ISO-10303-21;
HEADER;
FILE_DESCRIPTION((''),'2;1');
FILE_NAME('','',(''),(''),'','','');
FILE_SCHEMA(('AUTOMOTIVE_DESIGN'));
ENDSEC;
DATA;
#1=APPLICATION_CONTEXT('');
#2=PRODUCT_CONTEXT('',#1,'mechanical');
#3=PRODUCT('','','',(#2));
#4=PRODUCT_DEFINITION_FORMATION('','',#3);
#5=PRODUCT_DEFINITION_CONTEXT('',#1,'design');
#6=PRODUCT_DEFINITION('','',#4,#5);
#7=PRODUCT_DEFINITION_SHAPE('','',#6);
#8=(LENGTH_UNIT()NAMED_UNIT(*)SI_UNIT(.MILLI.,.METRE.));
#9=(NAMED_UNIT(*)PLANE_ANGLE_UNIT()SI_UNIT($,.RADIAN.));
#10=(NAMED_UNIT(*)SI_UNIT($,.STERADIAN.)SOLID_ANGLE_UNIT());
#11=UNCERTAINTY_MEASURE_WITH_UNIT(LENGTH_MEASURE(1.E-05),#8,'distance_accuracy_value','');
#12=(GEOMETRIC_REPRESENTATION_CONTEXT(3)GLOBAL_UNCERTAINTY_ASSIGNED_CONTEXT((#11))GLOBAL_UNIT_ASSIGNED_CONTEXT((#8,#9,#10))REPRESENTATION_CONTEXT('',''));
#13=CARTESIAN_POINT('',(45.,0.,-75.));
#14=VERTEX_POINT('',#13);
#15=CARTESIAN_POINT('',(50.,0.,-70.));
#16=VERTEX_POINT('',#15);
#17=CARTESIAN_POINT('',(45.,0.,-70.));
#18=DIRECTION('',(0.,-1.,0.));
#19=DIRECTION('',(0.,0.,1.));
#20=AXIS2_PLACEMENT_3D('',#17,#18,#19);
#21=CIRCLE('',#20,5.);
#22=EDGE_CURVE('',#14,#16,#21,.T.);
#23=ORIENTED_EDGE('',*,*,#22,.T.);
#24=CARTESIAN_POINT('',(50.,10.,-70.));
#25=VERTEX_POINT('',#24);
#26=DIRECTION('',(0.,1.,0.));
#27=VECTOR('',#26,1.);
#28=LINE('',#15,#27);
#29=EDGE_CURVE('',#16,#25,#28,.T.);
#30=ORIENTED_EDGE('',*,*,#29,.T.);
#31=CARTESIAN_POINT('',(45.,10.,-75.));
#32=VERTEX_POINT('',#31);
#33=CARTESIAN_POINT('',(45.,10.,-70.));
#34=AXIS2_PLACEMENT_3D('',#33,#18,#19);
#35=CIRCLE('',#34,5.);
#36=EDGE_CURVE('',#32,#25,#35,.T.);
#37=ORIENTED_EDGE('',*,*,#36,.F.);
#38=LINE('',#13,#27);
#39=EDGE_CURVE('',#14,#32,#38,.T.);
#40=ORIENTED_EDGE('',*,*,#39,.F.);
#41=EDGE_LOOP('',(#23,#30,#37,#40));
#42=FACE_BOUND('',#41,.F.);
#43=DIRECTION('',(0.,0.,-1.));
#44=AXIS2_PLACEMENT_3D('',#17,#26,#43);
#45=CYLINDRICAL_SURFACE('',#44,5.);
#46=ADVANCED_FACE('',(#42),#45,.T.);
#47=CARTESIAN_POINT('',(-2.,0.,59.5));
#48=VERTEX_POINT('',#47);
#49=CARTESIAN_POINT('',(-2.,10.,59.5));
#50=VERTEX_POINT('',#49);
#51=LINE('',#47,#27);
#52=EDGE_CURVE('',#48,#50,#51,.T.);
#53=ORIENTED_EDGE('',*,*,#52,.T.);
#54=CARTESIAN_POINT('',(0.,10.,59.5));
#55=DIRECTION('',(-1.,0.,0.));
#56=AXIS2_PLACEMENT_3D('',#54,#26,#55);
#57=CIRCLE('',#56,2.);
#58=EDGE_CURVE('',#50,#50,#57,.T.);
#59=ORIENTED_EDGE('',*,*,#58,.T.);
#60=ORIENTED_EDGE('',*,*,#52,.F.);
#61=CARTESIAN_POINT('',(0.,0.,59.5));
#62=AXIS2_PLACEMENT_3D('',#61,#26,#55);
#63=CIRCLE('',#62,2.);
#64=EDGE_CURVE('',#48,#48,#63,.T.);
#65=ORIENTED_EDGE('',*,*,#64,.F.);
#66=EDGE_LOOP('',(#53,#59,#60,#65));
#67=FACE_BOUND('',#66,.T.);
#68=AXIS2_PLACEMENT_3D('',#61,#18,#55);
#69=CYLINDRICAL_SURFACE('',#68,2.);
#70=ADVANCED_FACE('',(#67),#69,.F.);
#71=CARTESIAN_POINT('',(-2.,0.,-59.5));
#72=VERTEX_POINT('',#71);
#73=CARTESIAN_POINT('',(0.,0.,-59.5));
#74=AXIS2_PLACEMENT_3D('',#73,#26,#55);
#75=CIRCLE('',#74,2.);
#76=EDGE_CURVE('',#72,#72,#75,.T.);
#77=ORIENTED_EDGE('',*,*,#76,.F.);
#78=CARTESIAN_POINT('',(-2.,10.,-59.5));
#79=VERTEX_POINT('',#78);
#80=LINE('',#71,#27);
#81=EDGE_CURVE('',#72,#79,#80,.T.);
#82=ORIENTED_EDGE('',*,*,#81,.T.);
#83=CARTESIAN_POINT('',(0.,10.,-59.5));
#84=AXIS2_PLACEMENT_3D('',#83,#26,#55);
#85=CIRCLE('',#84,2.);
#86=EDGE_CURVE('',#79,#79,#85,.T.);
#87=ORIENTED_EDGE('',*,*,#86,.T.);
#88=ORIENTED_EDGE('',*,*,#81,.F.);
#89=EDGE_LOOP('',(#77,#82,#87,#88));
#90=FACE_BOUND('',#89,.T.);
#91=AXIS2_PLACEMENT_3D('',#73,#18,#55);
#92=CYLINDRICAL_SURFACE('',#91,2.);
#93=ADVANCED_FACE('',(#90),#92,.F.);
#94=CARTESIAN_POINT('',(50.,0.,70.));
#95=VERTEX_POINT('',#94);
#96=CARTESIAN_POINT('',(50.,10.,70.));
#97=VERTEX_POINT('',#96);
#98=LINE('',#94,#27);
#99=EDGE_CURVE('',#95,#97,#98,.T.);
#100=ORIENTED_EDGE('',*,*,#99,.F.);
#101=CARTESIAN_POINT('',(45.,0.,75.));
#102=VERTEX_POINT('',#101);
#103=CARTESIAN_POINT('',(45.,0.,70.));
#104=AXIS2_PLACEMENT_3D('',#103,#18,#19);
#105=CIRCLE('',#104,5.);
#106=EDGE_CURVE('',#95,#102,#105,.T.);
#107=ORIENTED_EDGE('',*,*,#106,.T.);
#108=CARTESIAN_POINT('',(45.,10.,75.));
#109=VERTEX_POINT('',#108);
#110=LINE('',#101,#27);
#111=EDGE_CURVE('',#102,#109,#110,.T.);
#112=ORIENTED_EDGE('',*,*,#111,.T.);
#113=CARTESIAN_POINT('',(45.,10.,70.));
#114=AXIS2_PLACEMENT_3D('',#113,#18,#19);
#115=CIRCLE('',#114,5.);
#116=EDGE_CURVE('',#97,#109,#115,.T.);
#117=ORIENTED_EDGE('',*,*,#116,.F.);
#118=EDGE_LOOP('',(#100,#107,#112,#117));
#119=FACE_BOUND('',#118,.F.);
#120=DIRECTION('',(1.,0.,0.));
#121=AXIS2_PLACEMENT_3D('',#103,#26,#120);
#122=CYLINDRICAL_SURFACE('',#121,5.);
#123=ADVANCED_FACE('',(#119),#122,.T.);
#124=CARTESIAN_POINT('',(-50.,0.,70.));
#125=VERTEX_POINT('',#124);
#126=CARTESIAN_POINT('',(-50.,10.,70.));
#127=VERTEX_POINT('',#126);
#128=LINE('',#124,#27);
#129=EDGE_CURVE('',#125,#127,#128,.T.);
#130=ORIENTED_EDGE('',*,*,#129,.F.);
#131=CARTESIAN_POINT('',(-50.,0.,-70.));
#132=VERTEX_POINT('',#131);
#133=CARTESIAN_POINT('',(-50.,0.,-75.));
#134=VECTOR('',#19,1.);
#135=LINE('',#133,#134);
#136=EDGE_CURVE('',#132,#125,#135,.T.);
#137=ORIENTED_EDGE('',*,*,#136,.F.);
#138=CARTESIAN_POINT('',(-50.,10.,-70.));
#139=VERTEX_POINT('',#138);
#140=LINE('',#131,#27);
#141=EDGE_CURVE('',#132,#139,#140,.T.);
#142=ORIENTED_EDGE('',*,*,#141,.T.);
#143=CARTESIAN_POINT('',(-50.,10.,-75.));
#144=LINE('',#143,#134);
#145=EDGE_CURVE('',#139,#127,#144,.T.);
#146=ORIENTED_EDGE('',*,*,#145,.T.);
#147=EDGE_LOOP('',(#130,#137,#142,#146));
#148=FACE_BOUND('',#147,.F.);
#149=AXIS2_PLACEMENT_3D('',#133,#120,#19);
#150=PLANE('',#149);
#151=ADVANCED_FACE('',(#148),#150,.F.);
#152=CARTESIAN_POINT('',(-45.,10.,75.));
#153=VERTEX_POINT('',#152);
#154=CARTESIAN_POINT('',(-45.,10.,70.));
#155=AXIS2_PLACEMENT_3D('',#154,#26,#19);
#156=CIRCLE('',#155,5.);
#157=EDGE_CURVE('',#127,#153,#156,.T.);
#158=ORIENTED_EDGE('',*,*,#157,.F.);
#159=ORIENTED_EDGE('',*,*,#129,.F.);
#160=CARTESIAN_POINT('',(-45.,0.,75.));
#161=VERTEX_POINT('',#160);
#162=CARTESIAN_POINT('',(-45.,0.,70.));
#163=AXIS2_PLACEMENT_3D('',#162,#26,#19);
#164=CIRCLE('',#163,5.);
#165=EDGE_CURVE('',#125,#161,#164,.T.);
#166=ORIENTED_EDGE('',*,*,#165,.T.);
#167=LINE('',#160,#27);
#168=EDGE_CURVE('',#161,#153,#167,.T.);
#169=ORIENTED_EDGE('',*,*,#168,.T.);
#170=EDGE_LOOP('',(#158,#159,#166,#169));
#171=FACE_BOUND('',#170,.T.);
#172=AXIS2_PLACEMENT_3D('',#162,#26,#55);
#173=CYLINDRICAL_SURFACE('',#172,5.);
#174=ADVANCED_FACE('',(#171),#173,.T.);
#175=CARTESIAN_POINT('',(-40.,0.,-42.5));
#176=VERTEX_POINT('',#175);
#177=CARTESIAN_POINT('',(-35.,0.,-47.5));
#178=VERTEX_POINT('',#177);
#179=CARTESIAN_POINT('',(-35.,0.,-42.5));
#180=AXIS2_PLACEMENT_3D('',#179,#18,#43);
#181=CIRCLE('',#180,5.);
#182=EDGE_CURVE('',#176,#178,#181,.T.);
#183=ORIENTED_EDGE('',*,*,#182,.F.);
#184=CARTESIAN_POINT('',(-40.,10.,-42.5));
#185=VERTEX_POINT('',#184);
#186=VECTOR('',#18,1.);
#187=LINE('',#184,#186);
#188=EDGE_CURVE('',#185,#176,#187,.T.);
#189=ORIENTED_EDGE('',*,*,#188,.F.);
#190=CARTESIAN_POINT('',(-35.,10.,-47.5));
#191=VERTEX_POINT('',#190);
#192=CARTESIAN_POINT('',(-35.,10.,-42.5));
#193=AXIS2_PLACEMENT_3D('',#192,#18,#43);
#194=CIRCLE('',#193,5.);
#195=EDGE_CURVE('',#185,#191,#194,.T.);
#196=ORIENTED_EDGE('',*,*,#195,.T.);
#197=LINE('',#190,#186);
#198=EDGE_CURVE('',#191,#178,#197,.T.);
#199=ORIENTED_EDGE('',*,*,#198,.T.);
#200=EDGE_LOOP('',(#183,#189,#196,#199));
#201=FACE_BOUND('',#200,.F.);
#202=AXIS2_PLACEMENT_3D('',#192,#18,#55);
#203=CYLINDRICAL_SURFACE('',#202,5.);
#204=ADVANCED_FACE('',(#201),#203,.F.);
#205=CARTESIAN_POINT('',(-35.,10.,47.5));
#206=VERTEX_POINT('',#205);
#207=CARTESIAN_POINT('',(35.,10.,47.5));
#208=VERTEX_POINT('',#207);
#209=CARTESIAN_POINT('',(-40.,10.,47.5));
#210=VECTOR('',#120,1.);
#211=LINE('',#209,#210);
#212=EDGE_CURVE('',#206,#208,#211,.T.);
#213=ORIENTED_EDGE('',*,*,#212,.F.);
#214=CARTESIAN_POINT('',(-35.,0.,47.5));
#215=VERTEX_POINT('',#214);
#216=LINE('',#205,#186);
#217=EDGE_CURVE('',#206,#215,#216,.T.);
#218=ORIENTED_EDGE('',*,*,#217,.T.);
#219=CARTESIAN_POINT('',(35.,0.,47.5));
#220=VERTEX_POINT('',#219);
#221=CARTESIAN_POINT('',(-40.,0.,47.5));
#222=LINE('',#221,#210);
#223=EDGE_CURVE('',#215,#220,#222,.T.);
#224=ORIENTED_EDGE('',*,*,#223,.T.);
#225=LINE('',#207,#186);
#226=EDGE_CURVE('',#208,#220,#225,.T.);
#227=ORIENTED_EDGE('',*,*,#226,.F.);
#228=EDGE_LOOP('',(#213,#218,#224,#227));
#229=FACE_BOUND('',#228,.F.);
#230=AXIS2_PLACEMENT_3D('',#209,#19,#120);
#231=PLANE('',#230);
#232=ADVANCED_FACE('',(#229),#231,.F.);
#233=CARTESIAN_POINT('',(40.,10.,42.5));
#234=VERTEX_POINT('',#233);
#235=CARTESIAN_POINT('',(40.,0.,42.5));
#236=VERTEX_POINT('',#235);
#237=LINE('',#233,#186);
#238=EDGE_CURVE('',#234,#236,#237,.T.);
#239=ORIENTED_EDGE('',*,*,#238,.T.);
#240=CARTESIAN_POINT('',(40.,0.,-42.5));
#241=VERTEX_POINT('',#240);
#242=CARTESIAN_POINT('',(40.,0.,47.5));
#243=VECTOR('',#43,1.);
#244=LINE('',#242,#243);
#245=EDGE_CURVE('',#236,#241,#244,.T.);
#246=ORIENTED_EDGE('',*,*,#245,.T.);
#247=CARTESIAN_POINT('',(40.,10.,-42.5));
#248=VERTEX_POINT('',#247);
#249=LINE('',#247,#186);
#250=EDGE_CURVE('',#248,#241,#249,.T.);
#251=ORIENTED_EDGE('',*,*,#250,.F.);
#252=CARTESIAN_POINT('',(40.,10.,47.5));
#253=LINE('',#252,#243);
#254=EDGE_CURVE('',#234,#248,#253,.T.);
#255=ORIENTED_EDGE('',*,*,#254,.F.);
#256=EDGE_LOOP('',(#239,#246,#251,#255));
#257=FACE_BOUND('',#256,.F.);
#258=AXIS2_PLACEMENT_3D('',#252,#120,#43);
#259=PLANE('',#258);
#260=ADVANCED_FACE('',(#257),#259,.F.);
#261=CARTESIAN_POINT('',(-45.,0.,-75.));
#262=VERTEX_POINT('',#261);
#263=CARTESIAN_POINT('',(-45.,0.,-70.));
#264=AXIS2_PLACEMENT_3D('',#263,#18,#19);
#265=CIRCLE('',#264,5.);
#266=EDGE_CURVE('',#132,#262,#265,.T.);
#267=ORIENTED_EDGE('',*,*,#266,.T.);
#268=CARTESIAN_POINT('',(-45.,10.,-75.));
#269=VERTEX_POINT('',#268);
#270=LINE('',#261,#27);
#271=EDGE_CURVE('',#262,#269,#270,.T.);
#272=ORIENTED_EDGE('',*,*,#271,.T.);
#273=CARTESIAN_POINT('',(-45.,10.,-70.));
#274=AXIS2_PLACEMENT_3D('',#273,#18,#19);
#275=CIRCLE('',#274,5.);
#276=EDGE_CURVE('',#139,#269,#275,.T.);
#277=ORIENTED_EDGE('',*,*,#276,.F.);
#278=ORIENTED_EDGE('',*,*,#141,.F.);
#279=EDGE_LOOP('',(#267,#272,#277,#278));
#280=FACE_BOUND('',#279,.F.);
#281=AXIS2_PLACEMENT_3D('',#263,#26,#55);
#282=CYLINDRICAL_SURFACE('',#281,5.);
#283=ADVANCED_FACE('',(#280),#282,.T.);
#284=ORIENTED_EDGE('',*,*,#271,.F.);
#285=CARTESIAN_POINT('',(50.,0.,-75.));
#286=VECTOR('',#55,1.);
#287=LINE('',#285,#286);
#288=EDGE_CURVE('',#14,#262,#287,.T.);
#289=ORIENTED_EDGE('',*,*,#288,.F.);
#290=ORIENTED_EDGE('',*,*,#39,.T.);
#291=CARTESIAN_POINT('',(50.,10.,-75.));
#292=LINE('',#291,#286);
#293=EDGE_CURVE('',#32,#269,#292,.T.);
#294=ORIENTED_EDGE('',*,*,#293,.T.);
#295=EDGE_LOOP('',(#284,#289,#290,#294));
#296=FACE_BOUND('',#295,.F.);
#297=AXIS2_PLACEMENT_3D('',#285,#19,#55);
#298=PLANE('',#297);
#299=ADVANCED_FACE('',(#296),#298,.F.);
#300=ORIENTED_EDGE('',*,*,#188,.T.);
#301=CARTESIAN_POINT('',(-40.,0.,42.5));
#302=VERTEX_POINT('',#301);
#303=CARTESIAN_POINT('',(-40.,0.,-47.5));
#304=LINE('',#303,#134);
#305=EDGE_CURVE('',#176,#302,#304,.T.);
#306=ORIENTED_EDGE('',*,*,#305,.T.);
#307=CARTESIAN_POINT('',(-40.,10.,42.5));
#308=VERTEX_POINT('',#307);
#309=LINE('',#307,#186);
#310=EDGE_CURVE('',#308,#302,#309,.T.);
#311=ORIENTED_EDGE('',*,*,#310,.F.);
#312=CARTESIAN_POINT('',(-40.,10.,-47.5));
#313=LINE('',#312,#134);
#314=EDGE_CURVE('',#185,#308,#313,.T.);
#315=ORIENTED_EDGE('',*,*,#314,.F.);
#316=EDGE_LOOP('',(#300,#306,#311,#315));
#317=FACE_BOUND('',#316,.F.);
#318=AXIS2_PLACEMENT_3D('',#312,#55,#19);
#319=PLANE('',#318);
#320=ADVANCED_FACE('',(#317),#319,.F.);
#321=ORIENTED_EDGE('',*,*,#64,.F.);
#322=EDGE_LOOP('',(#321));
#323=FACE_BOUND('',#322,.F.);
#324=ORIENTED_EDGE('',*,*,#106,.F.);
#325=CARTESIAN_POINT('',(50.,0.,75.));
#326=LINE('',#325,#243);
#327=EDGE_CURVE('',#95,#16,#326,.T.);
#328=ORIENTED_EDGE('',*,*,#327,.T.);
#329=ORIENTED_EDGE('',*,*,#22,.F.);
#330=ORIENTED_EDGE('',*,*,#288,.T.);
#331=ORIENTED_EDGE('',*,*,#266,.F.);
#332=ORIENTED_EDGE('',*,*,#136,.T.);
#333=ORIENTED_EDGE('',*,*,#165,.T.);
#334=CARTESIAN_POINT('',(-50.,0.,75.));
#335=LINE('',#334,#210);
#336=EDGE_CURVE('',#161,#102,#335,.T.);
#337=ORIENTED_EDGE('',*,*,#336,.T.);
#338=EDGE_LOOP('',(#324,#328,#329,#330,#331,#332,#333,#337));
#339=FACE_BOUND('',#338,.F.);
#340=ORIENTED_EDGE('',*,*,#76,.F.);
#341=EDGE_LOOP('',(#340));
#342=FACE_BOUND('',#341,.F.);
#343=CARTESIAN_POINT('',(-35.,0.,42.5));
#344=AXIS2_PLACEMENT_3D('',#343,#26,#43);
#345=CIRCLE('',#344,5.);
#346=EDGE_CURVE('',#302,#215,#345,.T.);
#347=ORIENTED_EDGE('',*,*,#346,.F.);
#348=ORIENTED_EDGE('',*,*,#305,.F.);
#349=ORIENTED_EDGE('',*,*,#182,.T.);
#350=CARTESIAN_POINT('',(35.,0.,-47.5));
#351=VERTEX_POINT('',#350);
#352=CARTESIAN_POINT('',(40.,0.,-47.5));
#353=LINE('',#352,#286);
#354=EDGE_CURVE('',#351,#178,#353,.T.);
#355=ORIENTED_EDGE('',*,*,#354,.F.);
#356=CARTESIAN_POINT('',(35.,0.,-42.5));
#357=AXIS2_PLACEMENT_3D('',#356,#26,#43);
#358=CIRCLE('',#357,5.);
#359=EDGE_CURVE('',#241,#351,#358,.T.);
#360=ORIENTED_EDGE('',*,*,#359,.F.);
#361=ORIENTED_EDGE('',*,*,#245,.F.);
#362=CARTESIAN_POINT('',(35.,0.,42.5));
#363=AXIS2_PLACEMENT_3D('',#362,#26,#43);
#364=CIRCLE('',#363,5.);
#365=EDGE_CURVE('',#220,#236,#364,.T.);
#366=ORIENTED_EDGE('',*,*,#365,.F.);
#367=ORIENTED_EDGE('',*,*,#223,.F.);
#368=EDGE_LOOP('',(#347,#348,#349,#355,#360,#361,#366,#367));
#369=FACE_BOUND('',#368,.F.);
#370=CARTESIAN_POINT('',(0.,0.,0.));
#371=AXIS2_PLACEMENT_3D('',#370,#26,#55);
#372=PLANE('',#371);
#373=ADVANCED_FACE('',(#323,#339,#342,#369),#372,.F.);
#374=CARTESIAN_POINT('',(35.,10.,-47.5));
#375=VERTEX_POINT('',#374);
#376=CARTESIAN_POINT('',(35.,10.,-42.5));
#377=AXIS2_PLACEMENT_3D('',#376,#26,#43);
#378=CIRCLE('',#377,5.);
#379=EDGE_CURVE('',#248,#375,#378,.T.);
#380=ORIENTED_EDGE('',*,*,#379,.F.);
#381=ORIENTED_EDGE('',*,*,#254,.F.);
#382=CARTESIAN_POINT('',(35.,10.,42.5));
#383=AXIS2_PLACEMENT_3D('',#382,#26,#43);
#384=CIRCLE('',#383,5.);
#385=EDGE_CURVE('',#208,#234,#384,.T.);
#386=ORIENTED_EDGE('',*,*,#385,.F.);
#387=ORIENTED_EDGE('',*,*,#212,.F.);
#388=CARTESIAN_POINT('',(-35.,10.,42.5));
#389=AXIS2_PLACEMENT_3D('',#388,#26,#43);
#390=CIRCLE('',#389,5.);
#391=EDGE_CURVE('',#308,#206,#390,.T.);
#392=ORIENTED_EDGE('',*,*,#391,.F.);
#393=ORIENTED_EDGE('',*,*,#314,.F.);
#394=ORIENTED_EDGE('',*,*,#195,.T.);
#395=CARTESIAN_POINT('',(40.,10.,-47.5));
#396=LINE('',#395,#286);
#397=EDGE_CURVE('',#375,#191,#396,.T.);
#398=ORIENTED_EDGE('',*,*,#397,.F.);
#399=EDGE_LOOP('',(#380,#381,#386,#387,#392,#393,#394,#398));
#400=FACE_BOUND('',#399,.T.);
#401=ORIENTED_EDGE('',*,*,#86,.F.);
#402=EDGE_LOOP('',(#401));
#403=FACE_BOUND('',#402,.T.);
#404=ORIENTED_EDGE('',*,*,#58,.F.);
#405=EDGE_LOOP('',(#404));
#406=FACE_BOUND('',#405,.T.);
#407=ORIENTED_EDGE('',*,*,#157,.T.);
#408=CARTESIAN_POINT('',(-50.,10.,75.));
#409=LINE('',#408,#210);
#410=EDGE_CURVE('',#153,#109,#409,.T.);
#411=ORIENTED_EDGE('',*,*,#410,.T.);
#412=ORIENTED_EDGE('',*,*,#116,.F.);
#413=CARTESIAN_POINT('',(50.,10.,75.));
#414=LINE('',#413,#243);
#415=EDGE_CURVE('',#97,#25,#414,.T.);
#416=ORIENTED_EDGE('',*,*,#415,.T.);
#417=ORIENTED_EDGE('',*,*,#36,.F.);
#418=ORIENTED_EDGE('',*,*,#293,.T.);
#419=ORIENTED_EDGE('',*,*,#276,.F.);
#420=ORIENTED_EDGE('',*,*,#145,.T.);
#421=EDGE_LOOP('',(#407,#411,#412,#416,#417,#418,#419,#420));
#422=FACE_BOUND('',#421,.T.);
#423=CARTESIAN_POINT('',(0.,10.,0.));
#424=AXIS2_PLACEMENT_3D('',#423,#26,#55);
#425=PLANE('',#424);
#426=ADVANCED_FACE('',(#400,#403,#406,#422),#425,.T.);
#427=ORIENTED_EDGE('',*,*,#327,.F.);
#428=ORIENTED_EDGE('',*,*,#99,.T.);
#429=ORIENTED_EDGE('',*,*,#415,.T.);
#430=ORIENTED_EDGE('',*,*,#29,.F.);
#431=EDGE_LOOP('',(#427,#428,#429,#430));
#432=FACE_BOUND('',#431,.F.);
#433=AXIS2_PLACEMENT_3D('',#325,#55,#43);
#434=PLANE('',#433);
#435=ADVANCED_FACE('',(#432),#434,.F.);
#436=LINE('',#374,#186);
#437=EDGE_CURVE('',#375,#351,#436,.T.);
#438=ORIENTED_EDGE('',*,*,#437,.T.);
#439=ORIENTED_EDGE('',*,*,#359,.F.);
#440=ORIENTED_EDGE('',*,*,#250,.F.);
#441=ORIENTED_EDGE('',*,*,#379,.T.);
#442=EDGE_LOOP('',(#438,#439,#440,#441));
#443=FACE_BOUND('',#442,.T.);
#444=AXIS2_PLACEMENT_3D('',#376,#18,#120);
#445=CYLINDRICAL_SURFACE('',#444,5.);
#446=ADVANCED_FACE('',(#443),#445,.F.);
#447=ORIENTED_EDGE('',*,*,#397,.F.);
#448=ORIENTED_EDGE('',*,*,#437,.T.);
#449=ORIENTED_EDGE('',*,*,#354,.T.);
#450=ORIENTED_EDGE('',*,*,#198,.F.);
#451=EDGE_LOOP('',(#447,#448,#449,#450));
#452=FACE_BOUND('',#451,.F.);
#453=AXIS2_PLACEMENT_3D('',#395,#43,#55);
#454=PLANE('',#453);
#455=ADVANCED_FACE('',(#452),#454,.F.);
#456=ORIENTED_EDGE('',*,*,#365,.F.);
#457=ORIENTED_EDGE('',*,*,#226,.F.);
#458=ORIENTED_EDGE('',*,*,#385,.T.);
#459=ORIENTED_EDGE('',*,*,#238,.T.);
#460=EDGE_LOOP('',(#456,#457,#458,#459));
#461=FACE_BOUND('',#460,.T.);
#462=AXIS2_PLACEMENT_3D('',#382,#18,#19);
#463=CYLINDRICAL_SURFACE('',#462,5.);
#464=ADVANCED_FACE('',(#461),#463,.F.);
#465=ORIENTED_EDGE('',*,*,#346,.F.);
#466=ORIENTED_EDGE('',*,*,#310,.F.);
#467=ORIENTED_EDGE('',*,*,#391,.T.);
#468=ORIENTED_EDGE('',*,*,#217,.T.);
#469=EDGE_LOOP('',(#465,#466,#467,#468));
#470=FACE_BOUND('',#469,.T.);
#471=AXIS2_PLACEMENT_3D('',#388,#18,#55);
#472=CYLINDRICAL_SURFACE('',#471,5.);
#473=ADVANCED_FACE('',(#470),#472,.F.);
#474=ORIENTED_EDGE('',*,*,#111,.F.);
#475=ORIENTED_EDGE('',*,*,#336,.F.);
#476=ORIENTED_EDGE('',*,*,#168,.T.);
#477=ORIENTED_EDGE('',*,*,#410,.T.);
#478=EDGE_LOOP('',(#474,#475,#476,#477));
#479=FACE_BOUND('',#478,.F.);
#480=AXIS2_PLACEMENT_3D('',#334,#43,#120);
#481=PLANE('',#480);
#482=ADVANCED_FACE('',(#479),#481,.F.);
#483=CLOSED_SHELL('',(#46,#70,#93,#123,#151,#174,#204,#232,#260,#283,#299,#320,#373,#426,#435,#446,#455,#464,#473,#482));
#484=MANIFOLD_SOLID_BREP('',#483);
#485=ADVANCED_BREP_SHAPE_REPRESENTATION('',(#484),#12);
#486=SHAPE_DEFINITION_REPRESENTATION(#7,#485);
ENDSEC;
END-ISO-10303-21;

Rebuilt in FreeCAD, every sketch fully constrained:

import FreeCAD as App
import Part
import Sketcher
from FreeCAD import Vector


def edges_at(feature, points):
    """Names of the edges that pass closest to the given points."""
    edges = feature.Shape.Edges
    near = lambda p: min(range(len(edges)), key=lambda i: edges[i].distToShape(Part.Vertex(*p))[0])
    return sorted({f"Edge{near(p) + 1}" for p in points})

doc = App.newDocument("Part")
body = doc.addObject("PartDesign::Body", "Body")

# Sketch on XZ plane
sketch1 = doc.addObject("Sketcher::SketchObject", "Sketch")
body.addObject(sketch1)
sketch1.AttachmentSupport = (doc.XZ_Plane, [""])
sketch1.MapMode = "FlatFace"
sketch1.addGeometry([
    Part.LineSegment(Vector(-50, -75, 0), Vector(-50, 75, 0)),  # 0
    Part.LineSegment(Vector(-50, 75, 0), Vector(50, 75, 0)),  # 1
    Part.LineSegment(Vector(50, 75, 0), Vector(50, -75, 0)),  # 2
    Part.LineSegment(Vector(50, -75, 0), Vector(-50, -75, 0)),  # 3
    Part.Circle(Vector(0, -59.5, 0), Vector(0, 0, 1), 2),  # 4
    Part.Circle(Vector(0, 59.5, 0), Vector(0, 0, 1), 2),  # 5
], False)
sketch1.addConstraint([
    Sketcher.Constraint("Coincident", 0, 2, 1, 1),
    Sketcher.Constraint("Coincident", 1, 2, 2, 1),
    Sketcher.Constraint("Coincident", 2, 2, 3, 1),
    Sketcher.Constraint("Coincident", 3, 2, 0, 1),
    Sketcher.Constraint("Vertical", 0),
    Sketcher.Constraint("Horizontal", 1),
    Sketcher.Constraint("Vertical", 2),
    Sketcher.Constraint("Horizontal", 3),
    Sketcher.Constraint("Equal", 4, 5),
    Sketcher.Constraint("Symmetric", 4, 3, 5, 3, -1, 1),
    Sketcher.Constraint("Symmetric", 0, 2, 2, 2, -1, 1),
    Sketcher.Constraint("PointOnObject", 4, 3, -2),
    Sketcher.Constraint("Diameter", 4, 4.0),
    Sketcher.Constraint("DistanceX", 1, 1, 1, 2, 100.0),
    Sketcher.Constraint("DistanceY", 0, 1, 0, 2, 150.0),
    Sketcher.Constraint("DistanceY", 4, 3, -1, 1, 59.5),
])
pad1 = doc.addObject("PartDesign::Pad", "Pad")
body.addObject(pad1)
pad1.Profile = sketch1
pad1.Length = 10
pad1.Reversed = True
doc.recompute()

fillet = doc.addObject("PartDesign::Fillet", "Fillet")
body.addObject(fillet)
fillet.Base = (pad1, edges_at(pad1, [
    (50, 5, 75),
    (50, 5, -75),
    (-50, 5, 75),
    (-50, 5, -75),
]))
fillet.Radius = 5

# Sketch on XZ plane
sketch2 = doc.addObject("Sketcher::SketchObject", "Sketch001")
body.addObject(sketch2)
sketch2.AttachmentSupport = (doc.XZ_Plane, [""])
sketch2.MapMode = "FlatFace"
sketch2.AttachmentOffset = App.Placement(Vector(0, 0, -10), App.Rotation())
sketch2.addGeometry([
    Part.LineSegment(Vector(-40, -48, 0), Vector(-40, 48, 0)),
    Part.LineSegment(Vector(-40, 48, 0), Vector(40, 48, 0)),
    Part.LineSegment(Vector(40, 48, 0), Vector(40, -48, 0)),
    Part.LineSegment(Vector(40, -48, 0), Vector(-40, -48, 0)),
], False)
sketch2.addConstraint([
    Sketcher.Constraint("Coincident", 0, 2, 1, 1),
    Sketcher.Constraint("Coincident", 1, 2, 2, 1),
    Sketcher.Constraint("Coincident", 2, 2, 3, 1),
    Sketcher.Constraint("Coincident", 3, 2, 0, 1),
    Sketcher.Constraint("Vertical", 0),
    Sketcher.Constraint("Horizontal", 1),
    Sketcher.Constraint("Vertical", 2),
    Sketcher.Constraint("Horizontal", 3),
    Sketcher.Constraint("Symmetric", 0, 2, 2, 2, -1, 1),
    Sketcher.Constraint("DistanceX", 1, 1, 1, 2, 80.0),
    Sketcher.Constraint("DistanceY", 0, 1, 0, 2, 95.0),
])
pocket1 = doc.addObject("PartDesign::Pocket", "Pocket")
body.addObject(pocket1)
pocket1.Profile = sketch2
pocket1.Length = 10
pocket1.Reversed = True
doc.recompute()

fillet2 = doc.addObject("PartDesign::Fillet", "Fillet001")
body.addObject(fillet2)
fillet2.Base = (pocket1, edges_at(pocket1, [
    (-40, 5, -47.5),
    (40, 5, -47.5),
    (40, 5, 47.5),
    (-40, 5, 47.5),
]))
fillet2.Radius = 5

doc.recompute()
